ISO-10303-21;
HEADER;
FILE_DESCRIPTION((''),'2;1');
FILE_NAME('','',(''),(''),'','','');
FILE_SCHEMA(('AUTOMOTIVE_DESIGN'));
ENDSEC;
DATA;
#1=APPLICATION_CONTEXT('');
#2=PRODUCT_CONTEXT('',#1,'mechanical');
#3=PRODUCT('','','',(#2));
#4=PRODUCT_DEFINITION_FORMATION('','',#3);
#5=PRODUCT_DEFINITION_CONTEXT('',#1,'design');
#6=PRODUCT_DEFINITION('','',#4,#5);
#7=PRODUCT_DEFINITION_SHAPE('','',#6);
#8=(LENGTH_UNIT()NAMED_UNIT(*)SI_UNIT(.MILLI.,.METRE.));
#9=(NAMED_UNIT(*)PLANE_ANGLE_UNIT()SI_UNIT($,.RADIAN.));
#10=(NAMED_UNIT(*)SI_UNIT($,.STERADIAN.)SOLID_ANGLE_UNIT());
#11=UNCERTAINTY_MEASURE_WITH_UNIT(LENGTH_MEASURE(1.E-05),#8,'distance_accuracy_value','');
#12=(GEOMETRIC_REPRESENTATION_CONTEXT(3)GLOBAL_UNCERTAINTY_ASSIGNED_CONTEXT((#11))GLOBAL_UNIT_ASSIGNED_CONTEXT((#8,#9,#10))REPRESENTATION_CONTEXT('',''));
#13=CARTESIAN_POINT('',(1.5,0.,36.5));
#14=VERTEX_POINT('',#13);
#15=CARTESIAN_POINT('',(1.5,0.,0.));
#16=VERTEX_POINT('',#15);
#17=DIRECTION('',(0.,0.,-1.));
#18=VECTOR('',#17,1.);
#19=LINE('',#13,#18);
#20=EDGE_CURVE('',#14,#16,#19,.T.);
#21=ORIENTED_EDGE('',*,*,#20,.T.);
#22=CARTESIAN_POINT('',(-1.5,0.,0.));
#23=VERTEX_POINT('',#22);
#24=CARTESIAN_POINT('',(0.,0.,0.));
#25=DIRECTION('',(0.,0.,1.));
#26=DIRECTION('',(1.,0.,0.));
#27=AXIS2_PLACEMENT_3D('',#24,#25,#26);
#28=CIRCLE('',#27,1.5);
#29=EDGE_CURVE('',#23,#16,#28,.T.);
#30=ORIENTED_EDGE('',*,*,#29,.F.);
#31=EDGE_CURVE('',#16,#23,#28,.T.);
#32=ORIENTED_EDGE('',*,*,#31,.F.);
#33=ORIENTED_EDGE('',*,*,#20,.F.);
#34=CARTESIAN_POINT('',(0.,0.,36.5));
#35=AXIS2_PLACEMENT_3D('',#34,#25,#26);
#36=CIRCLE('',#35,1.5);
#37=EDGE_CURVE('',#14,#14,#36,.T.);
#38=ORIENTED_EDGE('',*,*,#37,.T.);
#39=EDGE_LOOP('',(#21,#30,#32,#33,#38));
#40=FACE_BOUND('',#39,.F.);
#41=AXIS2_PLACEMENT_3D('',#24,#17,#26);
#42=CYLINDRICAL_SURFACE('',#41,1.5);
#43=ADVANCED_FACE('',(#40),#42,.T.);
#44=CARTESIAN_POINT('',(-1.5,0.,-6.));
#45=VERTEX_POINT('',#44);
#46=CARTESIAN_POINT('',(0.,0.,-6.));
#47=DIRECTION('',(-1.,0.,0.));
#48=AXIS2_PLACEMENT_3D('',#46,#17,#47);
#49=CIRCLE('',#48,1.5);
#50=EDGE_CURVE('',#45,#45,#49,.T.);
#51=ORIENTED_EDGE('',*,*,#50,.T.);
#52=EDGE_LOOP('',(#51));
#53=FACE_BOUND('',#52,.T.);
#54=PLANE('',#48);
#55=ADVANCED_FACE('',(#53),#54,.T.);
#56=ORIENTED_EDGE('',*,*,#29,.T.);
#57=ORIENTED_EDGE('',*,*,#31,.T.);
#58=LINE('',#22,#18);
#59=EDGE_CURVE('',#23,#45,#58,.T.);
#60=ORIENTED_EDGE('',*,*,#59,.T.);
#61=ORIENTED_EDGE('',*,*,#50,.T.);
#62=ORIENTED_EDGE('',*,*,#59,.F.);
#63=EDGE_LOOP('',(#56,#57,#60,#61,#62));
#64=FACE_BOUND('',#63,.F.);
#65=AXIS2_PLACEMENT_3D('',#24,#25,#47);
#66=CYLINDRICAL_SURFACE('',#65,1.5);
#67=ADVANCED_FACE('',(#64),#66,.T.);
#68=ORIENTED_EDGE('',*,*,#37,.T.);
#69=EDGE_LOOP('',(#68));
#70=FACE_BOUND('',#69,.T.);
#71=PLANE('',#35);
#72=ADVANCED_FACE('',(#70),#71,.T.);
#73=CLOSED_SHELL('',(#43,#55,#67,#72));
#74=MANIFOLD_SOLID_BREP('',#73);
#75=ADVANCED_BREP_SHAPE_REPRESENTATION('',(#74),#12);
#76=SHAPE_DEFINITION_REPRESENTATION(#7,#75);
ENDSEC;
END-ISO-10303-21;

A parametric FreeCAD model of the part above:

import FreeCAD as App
import Part
import Sketcher

V = App.Vector

doc = App.newDocument("Part")
body = doc.addObject("PartDesign::Body", "Body")

sketch1 = doc.addObject("Sketcher::SketchObject", "Sketch")
body.addObject(sketch1)
sketch1.AttachmentSupport = (doc.XY_Plane, [""])
sketch1.MapMode = "FlatFace"
sketch1.addGeometry(Part.Circle(V(0, 0, 0), V(0, 0, 1), 1.5), False)
sketch1.addConstraint([
    Sketcher.Constraint("Coincident", 0, 3, -1, 1),
    Sketcher.Constraint("Diameter", 0, 3.0),
])
pad1 = doc.addObject("PartDesign::Pad", "Pad")
body.addObject(pad1)
pad1.Profile = sketch1
pad1.Length = 30

sketch2 = doc.addObject("Sketcher::SketchObject", "Sketch001")
body.addObject(sketch2)
sketch2.AttachmentSupport = (doc.XY_Plane, [""])
sketch2.MapMode = "FlatFace"
sketch2.AttachmentOffset = App.Placement(V(0, 0, 30), App.Rotation())
sketch2.addGeometry(Part.Circle(V(0, 0, 0), V(0, 0, 1), 1.5), False)
sketch2.addConstraint([
    Sketcher.Constraint("Coincident", 0, 3, -1, 1),
    Sketcher.Constraint("Diameter", 0, 3.0),
])
pad2 = doc.addObject("PartDesign::Pad", "Pad001")
body.addObject(pad2)
pad2.Profile = sketch2
pad2.Length = 6.5

sketch3 = doc.addObject("Sketcher::SketchObject", "Sketch002")
body.addObject(sketch3)
sketch3.AttachmentSupport = (doc.XY_Plane, [""])
sketch3.MapMode = "FlatFace"
sketch3.addGeometry(Part.Circle(V(0, 0, 0), V(0, 0, 1), 1.5), False)
sketch3.addConstraint([
    Sketcher.Constraint("Coincident", 0, 3, -1, 1),
    Sketcher.Constraint("Diameter", 0, 3.0),
])
pad3 = doc.addObject("PartDesign::Pad", "Pad002")
body.addObject(pad3)
pad3.Profile = sketch3
pad3.Length = 6
pad3.Reversed = True

doc.recompute()
